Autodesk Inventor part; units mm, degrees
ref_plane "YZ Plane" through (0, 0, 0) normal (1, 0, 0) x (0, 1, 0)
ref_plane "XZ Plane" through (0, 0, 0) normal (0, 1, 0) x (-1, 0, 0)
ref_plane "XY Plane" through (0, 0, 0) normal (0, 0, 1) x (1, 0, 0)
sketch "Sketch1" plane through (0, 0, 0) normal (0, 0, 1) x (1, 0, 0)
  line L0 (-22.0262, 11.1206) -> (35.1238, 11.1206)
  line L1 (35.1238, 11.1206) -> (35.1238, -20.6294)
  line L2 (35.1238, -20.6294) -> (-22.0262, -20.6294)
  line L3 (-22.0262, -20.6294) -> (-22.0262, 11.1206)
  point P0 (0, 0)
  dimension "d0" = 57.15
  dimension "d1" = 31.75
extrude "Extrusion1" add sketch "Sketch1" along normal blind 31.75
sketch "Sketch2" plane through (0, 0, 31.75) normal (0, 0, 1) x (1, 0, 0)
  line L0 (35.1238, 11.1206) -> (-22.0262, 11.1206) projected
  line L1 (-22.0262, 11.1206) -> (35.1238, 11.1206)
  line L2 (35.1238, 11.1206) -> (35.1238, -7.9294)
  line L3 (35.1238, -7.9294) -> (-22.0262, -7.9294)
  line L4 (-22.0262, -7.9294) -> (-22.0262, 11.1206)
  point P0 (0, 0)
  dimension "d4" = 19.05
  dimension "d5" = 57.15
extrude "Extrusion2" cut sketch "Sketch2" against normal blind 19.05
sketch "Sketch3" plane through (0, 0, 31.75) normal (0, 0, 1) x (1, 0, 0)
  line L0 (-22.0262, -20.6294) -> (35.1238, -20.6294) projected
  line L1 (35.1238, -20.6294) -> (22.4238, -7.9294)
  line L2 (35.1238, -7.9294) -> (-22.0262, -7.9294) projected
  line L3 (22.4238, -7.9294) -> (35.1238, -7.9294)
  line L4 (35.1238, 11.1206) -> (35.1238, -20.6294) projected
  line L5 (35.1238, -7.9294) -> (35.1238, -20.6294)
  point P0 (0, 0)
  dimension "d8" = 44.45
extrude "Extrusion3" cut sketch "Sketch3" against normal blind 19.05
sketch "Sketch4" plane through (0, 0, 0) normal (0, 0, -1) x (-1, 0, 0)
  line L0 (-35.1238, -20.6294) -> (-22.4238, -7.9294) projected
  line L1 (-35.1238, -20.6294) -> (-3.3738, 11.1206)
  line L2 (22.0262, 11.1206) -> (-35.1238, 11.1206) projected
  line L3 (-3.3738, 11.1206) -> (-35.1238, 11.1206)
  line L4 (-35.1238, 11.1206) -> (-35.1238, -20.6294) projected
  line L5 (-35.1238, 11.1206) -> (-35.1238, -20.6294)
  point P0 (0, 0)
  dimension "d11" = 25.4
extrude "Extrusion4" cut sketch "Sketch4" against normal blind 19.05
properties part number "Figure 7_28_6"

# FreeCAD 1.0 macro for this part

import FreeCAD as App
import Part
import Sketcher

V = App.Vector
Q = App.Units.Quantity

doc = App.newDocument("Part")
body = doc.addObject("PartDesign::Body", "Body")

sketch1 = doc.addObject("Sketcher::SketchObject", "Sketch")
body.addObject(sketch1)
sketch1.AttachmentSupport = (doc.XY_Plane, [""])
sketch1.MapMode = "FlatFace"
sketch1.addGeometry([
    Part.LineSegment(V(35, 11, 0), V(-22, 11, 0)),
    Part.LineSegment(V(-22, 11, 0), V(-22, -21, 0)),
    Part.LineSegment(V(-22, -21, 0), V(35, -21, 0)),
    Part.LineSegment(V(35, -21, 0), V(35, 11, 0)),
], False)
sketch1.addConstraint([
    Sketcher.Constraint("Coincident", 0, 2, 1, 1),
    Sketcher.Constraint("Coincident", 1, 2, 2, 1),
    Sketcher.Constraint("Coincident", 2, 2, 3, 1),
    Sketcher.Constraint("Coincident", 3, 2, 0, 1),
    Sketcher.Constraint("Horizontal", 0),
    Sketcher.Constraint("Vertical", 1),
    Sketcher.Constraint("Horizontal", 2),
    Sketcher.Constraint("Vertical", 3),
    Sketcher.Constraint("DistanceX", 0, 2, 0, 1, Q("2.25 in")),
    Sketcher.Constraint("DistanceY", 1, 2, 1, 1, Q("1.25 in")),
    Sketcher.Constraint("DistanceX", 0, 2, -1, 1, Q("22.0262 mm")),
    Sketcher.Constraint("DistanceY", -1, 1, 0, 2, Q("11.1206 mm")),
])
pad1 = doc.addObject("PartDesign::Pad", "Pad")
body.addObject(pad1)
pad1.Profile = sketch1
pad1.Length = Q("1.25 in")

sketch2 = doc.addObject("Sketcher::SketchObject", "Sketch001")
body.addObject(sketch2)
sketch2.AttachmentSupport = (doc.XY_Plane, [""])
sketch2.MapMode = "FlatFace"
sketch2.AttachmentOffset = App.Placement(V(0, 0, 1.25 * 25.4), App.Rotation())
sketch2.addGeometry([
    Part.LineSegment(V(35, -8, 0), V(35, 11, 0)),
    Part.LineSegment(V(35, 11, 0), V(-22, 11, 0)),
    Part.LineSegment(V(-22, 11, 0), V(-22, -8, 0)),
    Part.LineSegment(V(-22, -8, 0), V(35, -8, 0)),
], False)
sketch2.addConstraint([
    Sketcher.Constraint("Coincident", 0, 2, 1, 1),
    Sketcher.Constraint("Coincident", 1, 2, 2, 1),
    Sketcher.Constraint("Coincident", 2, 2, 3, 1),
    Sketcher.Constraint("Coincident", 3, 2, 0, 1),
    Sketcher.Constraint("Vertical", 0),
    Sketcher.Constraint("Horizontal", 1),
    Sketcher.Constraint("Vertical", 2),
    Sketcher.Constraint("Horizontal", 3),
    Sketcher.Constraint("DistanceX", 1, 2, 1, 1, Q("2.25 in")),
    Sketcher.Constraint("DistanceY", 0, 1, 0, 2, Q("0.75 in")),
    Sketcher.Constraint("DistanceX", -1, 1, 0, 2, Q("35.1238 mm")),
    Sketcher.Constraint("DistanceY", -1, 1, 0, 2, Q("11.1206 mm")),
])
pocket1 = doc.addObject("PartDesign::Pocket", "Pocket")
body.addObject(pocket1)
pocket1.Profile = sketch2
pocket1.Length = Q("0.75 in")

sketch3 = doc.addObject("Sketcher::SketchObject", "Sketch002")
body.addObject(sketch3)
sketch3.AttachmentSupport = (doc.XY_Plane, [""])
sketch3.MapMode = "FlatFace"
sketch3.AttachmentOffset = App.Placement(V(0, 0, 1.25 * 25.4), App.Rotation())
sketch3.addGeometry([
    Part.LineSegment(V(22, -8, 0), V(35, -21, 0)),
    Part.LineSegment(V(35, -21, 0), V(35, -8, 0)),
    Part.LineSegment(V(35, -8, 0), V(22, -8, 0)),
], False)
sketch3.addConstraint([
    Sketcher.Constraint("Coincident", 0, 2, 1, 1),
    Sketcher.Constraint("Coincident", 1, 2, 2, 1),
    Sketcher.Constraint("Coincident", 2, 2, 0, 1),
    Sketcher.Constraint("Vertical", 1),
    Sketcher.Constraint("Horizontal", 2),
    Sketcher.Constraint("Equal", 2, 1),
    Sketcher.Constraint("DistanceX", 2, 2, 2, 1, Q("0.5 in")),
    Sketcher.Constraint("DistanceX", -1, 1, 0, 2, Q("35.1238 mm")),
    Sketcher.Constraint("DistanceY", 0, 2, -1, 1, Q("20.6294 mm")),
])
pocket2 = doc.addObject("PartDesign::Pocket", "Pocket001")
body.addObject(pocket2)
pocket2.Profile = sketch3
pocket2.Length = Q("0.75 in")

sketch4 = doc.addObject("Sketcher::SketchObject", "Sketch003")
body.addObject(sketch4)
sketch4.AttachmentSupport = (doc.XY_Plane, [""])
sketch4.MapMode = "FlatFace"
sketch4.addGeometry([
    Part.LineSegment(V(35, 11, 0), V(35, -21, 0)),
    Part.LineSegment(V(35, -21, 0), V(3, 11, 0)),
    Part.LineSegment(V(3, 11, 0), V(35, 11, 0)),
], False)
sketch4.addConstraint([
    Sketcher.Constraint("Coincident", 0, 2, 1, 1),
    Sketcher.Constraint("Coincident", 1, 2, 2, 1),
    Sketcher.Constraint("Coincident", 2, 2, 0, 1),
    Sketcher.Constraint("Vertical", 0),
    Sketcher.Constraint("Horizontal", 2),
    Sketcher.Constraint("Equal", 2, 0),
    Sketcher.Constraint("DistanceX", 2, 1, 2, 2, Q("1.25 in")),
    Sketcher.Constraint("DistanceX", -1, 1, 0, 2, Q("35.1238 mm")),
    Sketcher.Constraint("DistanceY", 0, 2, -1, 1, Q("20.6294 mm")),
])
pocket3 = doc.addObject("PartDesign::Pocket", "Pocket002")
body.addObject(pocket3)
pocket3.Profile = sketch4
pocket3.Length = Q("0.75 in")
pocket3.Reversed = True

doc.recompute()
